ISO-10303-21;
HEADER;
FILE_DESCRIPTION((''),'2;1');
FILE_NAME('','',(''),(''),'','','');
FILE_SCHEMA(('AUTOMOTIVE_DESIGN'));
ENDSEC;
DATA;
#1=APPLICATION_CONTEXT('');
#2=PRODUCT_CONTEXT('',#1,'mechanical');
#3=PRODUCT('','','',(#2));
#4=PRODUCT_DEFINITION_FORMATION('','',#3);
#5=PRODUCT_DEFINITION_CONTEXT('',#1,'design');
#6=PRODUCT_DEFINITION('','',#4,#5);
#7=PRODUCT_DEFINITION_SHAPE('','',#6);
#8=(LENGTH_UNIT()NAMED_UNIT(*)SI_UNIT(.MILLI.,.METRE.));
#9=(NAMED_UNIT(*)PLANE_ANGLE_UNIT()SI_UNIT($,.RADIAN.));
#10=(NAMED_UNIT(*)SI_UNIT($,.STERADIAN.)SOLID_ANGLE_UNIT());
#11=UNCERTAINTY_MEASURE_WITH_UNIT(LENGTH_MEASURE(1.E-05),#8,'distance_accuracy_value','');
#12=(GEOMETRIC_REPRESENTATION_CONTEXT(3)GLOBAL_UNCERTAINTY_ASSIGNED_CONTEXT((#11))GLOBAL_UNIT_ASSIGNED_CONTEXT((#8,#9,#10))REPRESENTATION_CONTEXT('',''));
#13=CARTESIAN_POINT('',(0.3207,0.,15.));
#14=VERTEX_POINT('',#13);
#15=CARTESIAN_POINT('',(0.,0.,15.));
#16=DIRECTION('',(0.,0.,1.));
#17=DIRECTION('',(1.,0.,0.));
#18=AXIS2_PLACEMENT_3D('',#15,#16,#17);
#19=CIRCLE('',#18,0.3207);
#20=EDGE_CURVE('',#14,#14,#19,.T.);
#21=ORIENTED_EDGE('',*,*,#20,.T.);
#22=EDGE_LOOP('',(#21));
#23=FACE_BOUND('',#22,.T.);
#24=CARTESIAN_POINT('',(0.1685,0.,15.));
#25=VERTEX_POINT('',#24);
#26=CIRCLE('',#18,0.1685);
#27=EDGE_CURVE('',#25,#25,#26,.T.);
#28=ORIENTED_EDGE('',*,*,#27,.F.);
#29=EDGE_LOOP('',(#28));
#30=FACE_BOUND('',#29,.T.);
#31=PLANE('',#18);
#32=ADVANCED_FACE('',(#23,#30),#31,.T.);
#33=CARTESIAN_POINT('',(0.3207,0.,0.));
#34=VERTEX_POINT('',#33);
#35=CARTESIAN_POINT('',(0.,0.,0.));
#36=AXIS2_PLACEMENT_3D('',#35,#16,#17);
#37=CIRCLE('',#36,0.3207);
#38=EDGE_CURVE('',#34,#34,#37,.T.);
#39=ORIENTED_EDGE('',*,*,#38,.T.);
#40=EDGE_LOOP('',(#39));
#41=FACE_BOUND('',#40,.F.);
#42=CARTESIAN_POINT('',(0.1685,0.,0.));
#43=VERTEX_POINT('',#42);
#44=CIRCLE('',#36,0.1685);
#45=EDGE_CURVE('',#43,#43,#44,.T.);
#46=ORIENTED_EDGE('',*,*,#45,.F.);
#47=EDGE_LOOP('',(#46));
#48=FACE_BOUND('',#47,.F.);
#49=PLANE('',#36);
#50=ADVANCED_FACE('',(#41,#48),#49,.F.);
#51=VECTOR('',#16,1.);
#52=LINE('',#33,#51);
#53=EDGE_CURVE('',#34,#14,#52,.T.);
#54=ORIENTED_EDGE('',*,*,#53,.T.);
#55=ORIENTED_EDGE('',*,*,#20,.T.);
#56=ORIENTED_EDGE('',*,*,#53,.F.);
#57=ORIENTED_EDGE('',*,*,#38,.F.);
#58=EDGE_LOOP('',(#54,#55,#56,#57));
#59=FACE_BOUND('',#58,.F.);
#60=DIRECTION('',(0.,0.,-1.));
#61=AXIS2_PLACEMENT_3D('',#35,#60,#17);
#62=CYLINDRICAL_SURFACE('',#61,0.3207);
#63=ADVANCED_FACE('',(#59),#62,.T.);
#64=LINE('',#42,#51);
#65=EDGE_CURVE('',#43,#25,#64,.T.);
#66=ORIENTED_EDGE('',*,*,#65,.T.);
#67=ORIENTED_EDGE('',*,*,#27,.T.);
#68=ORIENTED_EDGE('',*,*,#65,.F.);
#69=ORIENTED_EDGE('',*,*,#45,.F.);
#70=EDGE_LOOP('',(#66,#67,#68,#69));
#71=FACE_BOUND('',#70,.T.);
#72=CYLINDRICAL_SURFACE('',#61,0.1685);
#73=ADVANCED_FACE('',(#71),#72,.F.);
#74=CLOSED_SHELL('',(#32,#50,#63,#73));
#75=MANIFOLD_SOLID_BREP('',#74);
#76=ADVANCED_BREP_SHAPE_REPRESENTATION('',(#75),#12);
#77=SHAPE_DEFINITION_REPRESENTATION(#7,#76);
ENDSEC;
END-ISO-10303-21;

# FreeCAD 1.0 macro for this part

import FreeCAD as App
import Part
import Sketcher
from FreeCAD import Vector

doc = App.newDocument("Part")
body = doc.addObject("PartDesign::Body", "Body")

# Sketch on XY plane
sketch1 = doc.addObject("Sketcher::SketchObject", "Sketch")
body.addObject(sketch1)
sketch1.AttachmentSupport = (doc.XY_Plane, [""])
sketch1.MapMode = "FlatFace"
sketch1.addGeometry([
    Part.Circle(Vector(0, 0, 0), Vector(0, 0, 1), 0.32),
    Part.Circle(Vector(0, 0, 0), Vector(0, 0, 1), 0.17),
], False)
sketch1.addConstraint([
    Sketcher.Constraint("Coincident", 0, 3, -1, 1),
    Sketcher.Constraint("Coincident", 1, 3, -1, 1),
    Sketcher.Constraint("Diameter", 1, 0.337),
    Sketcher.Constraint("Diameter", 0, 0.6414),
])
pad1 = doc.addObject("PartDesign::Pad", "Pad")
body.addObject(pad1)
pad1.Profile = sketch1
pad1.Length = 15

doc.recompute()
